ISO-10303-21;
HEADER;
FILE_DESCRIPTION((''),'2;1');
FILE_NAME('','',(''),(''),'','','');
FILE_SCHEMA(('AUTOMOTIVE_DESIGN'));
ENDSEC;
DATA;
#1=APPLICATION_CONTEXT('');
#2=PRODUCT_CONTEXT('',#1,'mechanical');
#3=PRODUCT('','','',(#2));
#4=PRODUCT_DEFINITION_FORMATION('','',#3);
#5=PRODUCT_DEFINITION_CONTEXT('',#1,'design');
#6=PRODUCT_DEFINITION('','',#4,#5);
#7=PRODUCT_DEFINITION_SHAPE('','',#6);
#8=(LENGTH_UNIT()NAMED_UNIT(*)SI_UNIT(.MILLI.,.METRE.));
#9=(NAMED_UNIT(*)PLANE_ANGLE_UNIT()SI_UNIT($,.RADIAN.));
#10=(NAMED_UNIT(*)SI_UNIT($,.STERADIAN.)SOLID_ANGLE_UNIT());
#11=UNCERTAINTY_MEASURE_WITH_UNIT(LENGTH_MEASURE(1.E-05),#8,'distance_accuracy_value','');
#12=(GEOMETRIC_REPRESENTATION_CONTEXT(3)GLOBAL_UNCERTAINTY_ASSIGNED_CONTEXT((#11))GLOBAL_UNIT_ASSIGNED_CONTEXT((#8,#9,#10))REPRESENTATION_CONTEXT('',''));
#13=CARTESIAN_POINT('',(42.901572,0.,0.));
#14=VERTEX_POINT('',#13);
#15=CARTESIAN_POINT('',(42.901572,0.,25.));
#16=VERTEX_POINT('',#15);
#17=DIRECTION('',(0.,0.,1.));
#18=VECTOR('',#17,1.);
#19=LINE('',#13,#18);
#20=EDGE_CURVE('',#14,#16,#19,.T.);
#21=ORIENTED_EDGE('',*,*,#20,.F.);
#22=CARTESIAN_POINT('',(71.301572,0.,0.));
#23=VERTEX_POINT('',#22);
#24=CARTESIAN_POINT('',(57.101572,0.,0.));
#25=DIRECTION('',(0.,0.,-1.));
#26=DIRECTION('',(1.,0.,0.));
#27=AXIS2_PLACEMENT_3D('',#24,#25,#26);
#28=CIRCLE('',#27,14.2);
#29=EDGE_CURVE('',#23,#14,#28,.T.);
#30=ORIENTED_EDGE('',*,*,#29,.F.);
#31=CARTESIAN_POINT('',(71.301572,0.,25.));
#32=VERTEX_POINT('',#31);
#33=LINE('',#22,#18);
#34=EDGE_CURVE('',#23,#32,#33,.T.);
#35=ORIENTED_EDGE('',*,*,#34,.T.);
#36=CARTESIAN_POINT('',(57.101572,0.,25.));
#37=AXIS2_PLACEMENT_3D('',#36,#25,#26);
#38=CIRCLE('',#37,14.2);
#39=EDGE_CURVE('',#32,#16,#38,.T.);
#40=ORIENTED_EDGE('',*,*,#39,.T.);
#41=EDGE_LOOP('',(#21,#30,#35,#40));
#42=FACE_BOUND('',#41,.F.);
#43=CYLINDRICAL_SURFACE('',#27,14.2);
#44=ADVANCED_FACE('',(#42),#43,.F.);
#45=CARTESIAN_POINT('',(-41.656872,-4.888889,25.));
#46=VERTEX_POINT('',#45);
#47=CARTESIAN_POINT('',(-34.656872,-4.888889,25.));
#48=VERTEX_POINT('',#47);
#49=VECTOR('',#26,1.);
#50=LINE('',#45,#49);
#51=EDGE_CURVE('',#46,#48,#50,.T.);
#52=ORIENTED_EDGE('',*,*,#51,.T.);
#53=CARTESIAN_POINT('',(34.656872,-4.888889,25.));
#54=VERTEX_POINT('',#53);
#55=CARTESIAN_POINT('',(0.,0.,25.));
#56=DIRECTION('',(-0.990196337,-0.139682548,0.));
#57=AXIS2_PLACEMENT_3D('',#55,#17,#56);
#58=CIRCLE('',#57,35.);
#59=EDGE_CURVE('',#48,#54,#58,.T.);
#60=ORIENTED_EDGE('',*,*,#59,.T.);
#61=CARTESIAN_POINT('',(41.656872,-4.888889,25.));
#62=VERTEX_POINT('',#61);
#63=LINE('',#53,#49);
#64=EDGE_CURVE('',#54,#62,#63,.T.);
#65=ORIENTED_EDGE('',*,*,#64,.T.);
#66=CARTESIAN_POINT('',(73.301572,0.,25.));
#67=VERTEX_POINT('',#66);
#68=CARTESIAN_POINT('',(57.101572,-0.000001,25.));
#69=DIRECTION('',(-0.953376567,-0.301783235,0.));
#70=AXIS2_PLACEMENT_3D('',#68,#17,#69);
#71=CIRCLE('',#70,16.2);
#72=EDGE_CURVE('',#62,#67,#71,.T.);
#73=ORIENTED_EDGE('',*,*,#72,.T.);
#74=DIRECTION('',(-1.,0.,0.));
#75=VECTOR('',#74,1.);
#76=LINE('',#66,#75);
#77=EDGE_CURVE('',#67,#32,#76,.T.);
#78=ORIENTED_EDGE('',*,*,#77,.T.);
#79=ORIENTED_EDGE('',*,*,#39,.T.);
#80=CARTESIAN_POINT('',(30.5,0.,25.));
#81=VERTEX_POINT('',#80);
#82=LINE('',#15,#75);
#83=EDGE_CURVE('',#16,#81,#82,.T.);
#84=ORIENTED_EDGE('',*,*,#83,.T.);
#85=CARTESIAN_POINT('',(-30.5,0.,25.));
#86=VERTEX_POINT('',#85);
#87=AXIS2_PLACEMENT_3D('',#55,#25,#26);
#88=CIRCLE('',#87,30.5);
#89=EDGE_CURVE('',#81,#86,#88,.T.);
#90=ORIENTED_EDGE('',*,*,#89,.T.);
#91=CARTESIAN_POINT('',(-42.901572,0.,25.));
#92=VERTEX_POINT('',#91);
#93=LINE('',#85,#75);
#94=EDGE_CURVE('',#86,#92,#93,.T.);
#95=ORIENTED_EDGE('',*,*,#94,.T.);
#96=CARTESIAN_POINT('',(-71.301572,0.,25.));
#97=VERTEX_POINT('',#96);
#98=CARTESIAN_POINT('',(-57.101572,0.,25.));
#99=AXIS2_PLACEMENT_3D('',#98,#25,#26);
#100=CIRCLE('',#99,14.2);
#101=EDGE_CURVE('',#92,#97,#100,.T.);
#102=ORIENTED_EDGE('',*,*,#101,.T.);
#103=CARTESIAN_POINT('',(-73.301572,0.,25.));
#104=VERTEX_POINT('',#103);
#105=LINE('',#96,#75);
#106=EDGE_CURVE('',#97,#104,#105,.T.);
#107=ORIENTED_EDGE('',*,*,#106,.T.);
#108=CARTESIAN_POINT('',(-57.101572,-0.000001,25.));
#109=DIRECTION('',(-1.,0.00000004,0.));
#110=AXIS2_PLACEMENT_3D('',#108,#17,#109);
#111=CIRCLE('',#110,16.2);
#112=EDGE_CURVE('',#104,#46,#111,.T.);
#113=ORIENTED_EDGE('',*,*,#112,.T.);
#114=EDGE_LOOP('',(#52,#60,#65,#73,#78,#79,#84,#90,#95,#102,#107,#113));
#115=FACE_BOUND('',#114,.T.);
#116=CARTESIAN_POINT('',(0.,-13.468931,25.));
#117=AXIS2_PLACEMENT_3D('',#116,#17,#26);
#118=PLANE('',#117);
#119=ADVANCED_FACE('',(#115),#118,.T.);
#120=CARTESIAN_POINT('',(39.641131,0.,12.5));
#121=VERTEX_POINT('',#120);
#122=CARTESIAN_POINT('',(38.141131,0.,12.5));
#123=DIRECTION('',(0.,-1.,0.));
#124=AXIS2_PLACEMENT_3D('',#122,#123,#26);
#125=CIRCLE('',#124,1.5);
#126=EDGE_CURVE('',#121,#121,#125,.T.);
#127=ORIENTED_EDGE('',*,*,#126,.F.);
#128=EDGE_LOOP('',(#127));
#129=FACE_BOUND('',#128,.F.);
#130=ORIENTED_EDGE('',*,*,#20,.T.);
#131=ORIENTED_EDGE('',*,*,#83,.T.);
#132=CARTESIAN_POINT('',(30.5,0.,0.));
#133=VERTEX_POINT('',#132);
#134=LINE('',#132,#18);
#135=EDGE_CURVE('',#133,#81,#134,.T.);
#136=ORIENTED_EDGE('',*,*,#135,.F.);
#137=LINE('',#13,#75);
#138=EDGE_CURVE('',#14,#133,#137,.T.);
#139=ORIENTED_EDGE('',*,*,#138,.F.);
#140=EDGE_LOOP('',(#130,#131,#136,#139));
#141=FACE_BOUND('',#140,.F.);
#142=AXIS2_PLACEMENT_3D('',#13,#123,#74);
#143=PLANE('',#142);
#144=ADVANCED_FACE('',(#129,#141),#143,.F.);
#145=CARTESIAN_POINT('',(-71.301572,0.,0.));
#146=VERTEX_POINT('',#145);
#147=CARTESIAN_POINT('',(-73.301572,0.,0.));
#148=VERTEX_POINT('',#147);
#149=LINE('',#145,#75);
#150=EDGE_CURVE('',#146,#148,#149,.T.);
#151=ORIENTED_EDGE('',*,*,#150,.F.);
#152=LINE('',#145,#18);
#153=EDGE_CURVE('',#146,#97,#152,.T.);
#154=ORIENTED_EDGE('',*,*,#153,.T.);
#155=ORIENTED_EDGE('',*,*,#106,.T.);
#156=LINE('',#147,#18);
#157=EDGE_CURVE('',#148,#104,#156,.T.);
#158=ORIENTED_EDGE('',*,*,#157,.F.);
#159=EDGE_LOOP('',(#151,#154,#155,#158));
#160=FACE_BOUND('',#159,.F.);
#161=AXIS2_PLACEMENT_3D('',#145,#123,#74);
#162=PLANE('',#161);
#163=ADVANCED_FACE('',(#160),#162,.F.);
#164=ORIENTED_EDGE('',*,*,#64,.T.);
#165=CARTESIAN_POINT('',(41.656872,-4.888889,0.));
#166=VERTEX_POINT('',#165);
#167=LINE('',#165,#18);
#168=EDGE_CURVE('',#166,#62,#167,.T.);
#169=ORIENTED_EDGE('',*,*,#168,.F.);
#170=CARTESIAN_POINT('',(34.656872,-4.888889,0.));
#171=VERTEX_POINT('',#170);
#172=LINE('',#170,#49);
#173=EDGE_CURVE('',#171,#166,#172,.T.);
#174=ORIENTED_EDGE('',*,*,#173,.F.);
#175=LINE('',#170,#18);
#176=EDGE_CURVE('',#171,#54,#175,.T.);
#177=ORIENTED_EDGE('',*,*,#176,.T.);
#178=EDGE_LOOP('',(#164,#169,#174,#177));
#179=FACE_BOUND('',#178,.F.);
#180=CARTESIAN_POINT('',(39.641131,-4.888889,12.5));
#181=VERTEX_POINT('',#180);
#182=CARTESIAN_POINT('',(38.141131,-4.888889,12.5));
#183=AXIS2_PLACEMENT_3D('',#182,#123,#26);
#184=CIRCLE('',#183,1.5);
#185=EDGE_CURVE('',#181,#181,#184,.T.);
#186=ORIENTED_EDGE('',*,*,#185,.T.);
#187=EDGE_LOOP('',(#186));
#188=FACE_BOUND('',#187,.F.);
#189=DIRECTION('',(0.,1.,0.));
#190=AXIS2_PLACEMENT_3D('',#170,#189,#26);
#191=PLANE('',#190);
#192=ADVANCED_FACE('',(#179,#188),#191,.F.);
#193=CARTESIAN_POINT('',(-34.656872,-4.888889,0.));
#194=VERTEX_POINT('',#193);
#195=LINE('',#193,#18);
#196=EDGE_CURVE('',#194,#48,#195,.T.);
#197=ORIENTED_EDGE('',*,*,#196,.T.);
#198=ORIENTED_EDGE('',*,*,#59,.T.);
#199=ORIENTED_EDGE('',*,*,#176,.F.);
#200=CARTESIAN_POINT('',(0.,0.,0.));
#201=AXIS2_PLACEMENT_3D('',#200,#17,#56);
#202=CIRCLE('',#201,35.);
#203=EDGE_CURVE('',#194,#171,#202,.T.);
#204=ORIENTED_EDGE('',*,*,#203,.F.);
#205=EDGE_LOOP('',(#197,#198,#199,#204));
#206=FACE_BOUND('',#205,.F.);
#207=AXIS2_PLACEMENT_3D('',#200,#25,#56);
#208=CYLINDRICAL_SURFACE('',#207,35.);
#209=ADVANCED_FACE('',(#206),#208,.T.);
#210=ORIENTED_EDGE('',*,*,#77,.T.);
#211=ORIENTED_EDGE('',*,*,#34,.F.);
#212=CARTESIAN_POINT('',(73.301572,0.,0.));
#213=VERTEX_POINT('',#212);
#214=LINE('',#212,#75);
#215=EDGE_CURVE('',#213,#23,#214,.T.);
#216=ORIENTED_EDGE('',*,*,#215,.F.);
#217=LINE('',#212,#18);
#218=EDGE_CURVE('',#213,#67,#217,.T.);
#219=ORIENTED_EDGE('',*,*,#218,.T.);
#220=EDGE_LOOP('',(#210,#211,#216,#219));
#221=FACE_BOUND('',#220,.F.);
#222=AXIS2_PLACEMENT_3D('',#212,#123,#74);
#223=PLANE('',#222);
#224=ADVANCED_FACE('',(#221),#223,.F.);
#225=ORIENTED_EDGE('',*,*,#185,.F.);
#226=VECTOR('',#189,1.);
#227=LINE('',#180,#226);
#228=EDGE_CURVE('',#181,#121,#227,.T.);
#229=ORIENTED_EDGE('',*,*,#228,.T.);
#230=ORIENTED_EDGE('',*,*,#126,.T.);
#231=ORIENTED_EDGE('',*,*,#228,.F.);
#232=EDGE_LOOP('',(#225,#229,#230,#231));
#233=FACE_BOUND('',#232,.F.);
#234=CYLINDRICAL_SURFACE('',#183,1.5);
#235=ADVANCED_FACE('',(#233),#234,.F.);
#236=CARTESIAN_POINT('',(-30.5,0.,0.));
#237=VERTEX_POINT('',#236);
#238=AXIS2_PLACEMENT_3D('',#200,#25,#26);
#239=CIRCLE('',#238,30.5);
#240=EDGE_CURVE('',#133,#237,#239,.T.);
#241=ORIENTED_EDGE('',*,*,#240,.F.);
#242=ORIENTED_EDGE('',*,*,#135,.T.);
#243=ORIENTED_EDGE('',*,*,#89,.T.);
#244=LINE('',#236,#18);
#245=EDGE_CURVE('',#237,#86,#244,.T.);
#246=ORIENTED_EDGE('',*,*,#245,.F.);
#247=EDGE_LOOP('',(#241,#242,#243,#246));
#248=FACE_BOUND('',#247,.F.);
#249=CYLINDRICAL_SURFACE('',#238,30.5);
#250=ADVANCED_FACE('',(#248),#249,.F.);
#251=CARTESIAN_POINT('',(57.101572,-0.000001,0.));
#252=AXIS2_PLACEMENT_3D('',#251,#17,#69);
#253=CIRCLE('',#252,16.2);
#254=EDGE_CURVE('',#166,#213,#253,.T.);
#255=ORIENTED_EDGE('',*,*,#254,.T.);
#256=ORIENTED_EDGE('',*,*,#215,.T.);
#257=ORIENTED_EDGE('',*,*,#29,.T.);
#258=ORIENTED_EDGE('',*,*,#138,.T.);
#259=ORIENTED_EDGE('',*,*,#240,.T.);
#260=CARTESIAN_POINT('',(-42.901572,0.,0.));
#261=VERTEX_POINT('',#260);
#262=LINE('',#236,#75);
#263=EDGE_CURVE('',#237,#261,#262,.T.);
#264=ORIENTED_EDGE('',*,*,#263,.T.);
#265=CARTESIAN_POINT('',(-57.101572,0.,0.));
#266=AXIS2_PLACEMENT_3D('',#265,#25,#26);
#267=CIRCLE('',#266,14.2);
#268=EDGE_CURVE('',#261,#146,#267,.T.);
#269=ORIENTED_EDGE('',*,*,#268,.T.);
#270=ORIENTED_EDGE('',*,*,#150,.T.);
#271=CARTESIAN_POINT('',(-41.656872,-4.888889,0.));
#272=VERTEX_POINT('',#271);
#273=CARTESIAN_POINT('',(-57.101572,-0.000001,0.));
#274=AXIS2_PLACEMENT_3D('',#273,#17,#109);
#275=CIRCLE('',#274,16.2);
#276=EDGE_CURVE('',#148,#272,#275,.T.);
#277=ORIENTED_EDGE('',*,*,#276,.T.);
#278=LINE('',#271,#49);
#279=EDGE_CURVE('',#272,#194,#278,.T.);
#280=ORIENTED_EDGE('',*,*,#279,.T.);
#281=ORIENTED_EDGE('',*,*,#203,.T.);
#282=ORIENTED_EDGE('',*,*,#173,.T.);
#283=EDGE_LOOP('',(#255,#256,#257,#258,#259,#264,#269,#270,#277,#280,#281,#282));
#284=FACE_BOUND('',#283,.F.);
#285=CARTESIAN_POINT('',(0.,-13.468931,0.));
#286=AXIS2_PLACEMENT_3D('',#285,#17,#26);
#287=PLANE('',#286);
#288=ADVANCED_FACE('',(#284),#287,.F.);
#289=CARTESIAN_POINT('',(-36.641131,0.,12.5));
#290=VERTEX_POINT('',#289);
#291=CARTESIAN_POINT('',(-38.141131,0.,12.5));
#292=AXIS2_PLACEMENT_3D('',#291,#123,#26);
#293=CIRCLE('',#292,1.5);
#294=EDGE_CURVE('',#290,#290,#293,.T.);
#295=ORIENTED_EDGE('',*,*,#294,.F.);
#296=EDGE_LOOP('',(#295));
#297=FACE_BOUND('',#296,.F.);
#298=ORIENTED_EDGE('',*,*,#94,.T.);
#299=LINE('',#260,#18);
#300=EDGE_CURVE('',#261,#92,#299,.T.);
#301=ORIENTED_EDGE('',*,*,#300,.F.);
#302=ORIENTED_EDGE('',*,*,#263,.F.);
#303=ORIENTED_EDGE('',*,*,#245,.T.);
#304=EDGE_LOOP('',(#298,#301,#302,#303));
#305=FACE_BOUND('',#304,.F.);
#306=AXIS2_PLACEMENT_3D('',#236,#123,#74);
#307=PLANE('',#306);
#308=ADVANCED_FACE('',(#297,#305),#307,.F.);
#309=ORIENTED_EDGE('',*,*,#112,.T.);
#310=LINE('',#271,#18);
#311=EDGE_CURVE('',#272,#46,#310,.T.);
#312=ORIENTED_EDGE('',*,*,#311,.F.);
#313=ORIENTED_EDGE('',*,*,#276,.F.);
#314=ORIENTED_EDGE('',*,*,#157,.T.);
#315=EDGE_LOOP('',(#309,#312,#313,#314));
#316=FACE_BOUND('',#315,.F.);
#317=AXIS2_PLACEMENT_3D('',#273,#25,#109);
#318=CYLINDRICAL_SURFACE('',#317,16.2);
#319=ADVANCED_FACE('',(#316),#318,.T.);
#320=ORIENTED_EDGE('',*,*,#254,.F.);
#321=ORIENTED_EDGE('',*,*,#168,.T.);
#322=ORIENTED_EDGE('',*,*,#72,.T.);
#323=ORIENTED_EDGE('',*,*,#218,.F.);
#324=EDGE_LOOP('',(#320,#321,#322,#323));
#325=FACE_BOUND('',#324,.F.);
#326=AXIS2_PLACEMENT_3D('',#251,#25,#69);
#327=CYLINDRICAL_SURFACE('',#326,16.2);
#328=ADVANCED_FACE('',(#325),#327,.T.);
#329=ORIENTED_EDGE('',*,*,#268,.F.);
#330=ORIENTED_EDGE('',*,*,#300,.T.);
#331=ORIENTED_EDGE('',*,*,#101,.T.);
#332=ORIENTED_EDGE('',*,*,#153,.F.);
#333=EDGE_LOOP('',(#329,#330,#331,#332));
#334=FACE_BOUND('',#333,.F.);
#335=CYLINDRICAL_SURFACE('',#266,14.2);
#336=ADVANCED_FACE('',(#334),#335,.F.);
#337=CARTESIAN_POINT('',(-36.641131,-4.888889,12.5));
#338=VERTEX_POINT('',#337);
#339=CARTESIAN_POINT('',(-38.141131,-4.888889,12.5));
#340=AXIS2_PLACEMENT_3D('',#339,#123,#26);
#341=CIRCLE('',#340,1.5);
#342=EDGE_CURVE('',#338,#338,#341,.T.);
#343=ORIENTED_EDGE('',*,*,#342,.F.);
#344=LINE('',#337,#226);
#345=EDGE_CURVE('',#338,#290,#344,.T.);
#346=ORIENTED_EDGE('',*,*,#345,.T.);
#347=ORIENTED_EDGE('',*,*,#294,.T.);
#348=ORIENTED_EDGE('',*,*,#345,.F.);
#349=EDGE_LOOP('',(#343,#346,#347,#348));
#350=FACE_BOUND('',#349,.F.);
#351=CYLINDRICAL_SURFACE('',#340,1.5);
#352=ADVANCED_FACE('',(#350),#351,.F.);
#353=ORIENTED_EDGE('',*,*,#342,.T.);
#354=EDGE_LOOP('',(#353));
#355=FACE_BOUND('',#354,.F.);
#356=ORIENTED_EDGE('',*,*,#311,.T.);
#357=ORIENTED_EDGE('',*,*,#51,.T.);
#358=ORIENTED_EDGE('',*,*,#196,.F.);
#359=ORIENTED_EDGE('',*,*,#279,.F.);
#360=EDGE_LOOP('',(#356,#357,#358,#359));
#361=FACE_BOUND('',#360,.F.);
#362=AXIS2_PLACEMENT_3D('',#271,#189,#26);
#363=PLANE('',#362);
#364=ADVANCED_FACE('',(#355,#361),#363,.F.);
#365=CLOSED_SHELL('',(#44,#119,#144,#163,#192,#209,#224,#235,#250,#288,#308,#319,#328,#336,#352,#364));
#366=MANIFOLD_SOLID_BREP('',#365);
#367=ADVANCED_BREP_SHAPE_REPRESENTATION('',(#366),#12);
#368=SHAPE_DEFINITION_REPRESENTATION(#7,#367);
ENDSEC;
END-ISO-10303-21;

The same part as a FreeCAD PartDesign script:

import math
import FreeCAD as App
import Part
import Sketcher
Q = App.Units.Quantity

doc = App.newDocument("Part")
body = doc.addObject("PartDesign::Body", "Body")

sketch1 = doc.addObject("Sketcher::SketchObject", "Sketch")
body.addObject(sketch1)
sketch1.AttachmentSupport = (doc.XY_Plane, [""])
sketch1.MapMode = "FlatFace"
sketch1.addGeometry([
    Part.ArcOfCircle(Part.Circle(App.Vector(0, 0, 0), App.Vector(0, 0, 1), 30.5), math.radians(180), math.radians(360)),
    Part.LineSegment(App.Vector(-30.5, 0, 0), App.Vector(-42.9, 0, 0)),
    Part.ArcOfCircle(Part.Circle(App.Vector(-57.1, 0, 0), App.Vector(0, 0, 1), 14.2), math.radians(180), math.radians(360)),
    Part.LineSegment(App.Vector(-71.3, 0, 0), App.Vector(-73.3, 0, 0)),
    Part.ArcOfCircle(Part.Circle(App.Vector(-57.1, 0, 0), App.Vector(0, 0, 1), 16.2), math.radians(180), math.radians(342)),
    Part.LineSegment(App.Vector(-41.7, -4.9, 0), App.Vector(-34.7, -4.9, 0)),
    Part.ArcOfCircle(Part.Circle(App.Vector(0, 0, 0), App.Vector(0, 0, 1), 35), math.radians(-172), math.radians(-8)),
    Part.LineSegment(App.Vector(34.7, -4.9, 0), App.Vector(41.7, -4.9, 0)),
    Part.ArcOfCircle(Part.Circle(App.Vector(57.1, 0, 0), App.Vector(0, 0, 1), 16.2), math.radians(-162), math.radians(0)),
    Part.LineSegment(App.Vector(73.3, 0, 0), App.Vector(71.3, 0, 0)),
    Part.ArcOfCircle(Part.Circle(App.Vector(57.1, 0, 0), App.Vector(0, 0, 1), 14.2), math.radians(180), math.radians(360)),
    Part.LineSegment(App.Vector(42.9, 0, 0), App.Vector(30.5, 0, 0)),
], False)
sketch1.addConstraint([
    Sketcher.Constraint("Coincident", 0, 1, 1, 1),
    Sketcher.Constraint("Coincident", 1, 2, 2, 2),
    Sketcher.Constraint("Coincident", 2, 1, 3, 1),
    Sketcher.Constraint("Coincident", 3, 2, 4, 1),
    Sketcher.Constraint("Coincident", 4, 2, 5, 1),
    Sketcher.Constraint("Coincident", 5, 2, 6, 1),
    Sketcher.Constraint("Coincident", 6, 2, 7, 1),
    Sketcher.Constraint("Coincident", 7, 2, 8, 1),
    Sketcher.Constraint("Coincident", 8, 2, 9, 1),
    Sketcher.Constraint("Coincident", 9, 2, 10, 2),
    Sketcher.Constraint("Coincident", 10, 1, 11, 1),
    Sketcher.Constraint("Coincident", 11, 2, 0, 2),
    Sketcher.Constraint("Horizontal", 1),
    Sketcher.Constraint("Horizontal", 3),
    Sketcher.Constraint("Horizontal", 5),
    Sketcher.Constraint("Horizontal", 7),
    Sketcher.Constraint("Horizontal", 9),
    Sketcher.Constraint("Horizontal", 11),
    Sketcher.Constraint("Coincident", 0, 3, -1, 1),
    Sketcher.Constraint("Coincident", 6, 3, -1, 1),
    Sketcher.Constraint("Coincident", 4, 3, 2, 3),
    Sketcher.Constraint("Coincident", 10, 3, 8, 3),
    Sketcher.Constraint("Equal", 4, 8),
    Sketcher.Constraint("Equal", 2, 10),
    Sketcher.Constraint("Symmetric", 2, 3, 8, 3, -1, 1),
    Sketcher.Constraint("Symmetric", 4, 2, 7, 2, -2),
    Sketcher.Constraint("PointOnObject", 0, 1, -1),
    Sketcher.Constraint("PointOnObject", 2, 1, -1),
    Sketcher.Constraint("PointOnObject", 8, 2, -1),
    Sketcher.Constraint("PointOnObject", 10, 1, -1),
    Sketcher.Constraint("Radius", 6, Q("35 mm")),
    Sketcher.Constraint("Radius", 0, Q("30.5 mm")),
    Sketcher.Constraint("Radius", 2, Q("14.2 mm")),
    Sketcher.Constraint("Radius", 4, Q("16.2 mm")),
    Sketcher.Constraint("DistanceX", 5, 1, 5, 2, Q("7 mm")),
    Sketcher.Constraint("DistanceX", 1, 2, 4, 2, Q("1.2447 mm")),
])
pad1 = doc.addObject("PartDesign::Pad", "Pad")
body.addObject(pad1)
pad1.Profile = sketch1
pad1.Length = 25

sketch2 = doc.addObject("Sketcher::SketchObject", "Sketch001")
body.addObject(sketch2)
sketch2.AttachmentSupport = (doc.XZ_Plane, [""])
sketch2.MapMode = "FlatFace"
sketch2.AttachmentOffset = App.Placement(App.Vector(0, 0, 4.888889), App.Rotation())
sketch2.addGeometry([
    Part.Circle(App.Vector(38.1, 12.5, 0), App.Vector(0, 0, 1), 1.5),
    Part.Circle(App.Vector(-38.1, 12.5, 0), App.Vector(0, 0, 1), 1.5),
], False)
sketch2.addConstraint([
    Sketcher.Constraint("Equal", 0, 1),
    Sketcher.Constraint("Symmetric", 0, 3, 1, 3, -2),
    Sketcher.Constraint("Diameter", 0, Q("3 mm")),
    Sketcher.Constraint("DistanceY", -1, 1, 0, 3, Q("12.5 mm")),
    Sketcher.Constraint("DistanceX", -1, 1, 0, 3, Q("38.141131 mm")),
])
pocket1 = doc.addObject("PartDesign::Pocket", "Pocket")
body.addObject(pocket1)
pocket1.Profile = sketch2
pocket1.Length = 25

doc.recompute()
